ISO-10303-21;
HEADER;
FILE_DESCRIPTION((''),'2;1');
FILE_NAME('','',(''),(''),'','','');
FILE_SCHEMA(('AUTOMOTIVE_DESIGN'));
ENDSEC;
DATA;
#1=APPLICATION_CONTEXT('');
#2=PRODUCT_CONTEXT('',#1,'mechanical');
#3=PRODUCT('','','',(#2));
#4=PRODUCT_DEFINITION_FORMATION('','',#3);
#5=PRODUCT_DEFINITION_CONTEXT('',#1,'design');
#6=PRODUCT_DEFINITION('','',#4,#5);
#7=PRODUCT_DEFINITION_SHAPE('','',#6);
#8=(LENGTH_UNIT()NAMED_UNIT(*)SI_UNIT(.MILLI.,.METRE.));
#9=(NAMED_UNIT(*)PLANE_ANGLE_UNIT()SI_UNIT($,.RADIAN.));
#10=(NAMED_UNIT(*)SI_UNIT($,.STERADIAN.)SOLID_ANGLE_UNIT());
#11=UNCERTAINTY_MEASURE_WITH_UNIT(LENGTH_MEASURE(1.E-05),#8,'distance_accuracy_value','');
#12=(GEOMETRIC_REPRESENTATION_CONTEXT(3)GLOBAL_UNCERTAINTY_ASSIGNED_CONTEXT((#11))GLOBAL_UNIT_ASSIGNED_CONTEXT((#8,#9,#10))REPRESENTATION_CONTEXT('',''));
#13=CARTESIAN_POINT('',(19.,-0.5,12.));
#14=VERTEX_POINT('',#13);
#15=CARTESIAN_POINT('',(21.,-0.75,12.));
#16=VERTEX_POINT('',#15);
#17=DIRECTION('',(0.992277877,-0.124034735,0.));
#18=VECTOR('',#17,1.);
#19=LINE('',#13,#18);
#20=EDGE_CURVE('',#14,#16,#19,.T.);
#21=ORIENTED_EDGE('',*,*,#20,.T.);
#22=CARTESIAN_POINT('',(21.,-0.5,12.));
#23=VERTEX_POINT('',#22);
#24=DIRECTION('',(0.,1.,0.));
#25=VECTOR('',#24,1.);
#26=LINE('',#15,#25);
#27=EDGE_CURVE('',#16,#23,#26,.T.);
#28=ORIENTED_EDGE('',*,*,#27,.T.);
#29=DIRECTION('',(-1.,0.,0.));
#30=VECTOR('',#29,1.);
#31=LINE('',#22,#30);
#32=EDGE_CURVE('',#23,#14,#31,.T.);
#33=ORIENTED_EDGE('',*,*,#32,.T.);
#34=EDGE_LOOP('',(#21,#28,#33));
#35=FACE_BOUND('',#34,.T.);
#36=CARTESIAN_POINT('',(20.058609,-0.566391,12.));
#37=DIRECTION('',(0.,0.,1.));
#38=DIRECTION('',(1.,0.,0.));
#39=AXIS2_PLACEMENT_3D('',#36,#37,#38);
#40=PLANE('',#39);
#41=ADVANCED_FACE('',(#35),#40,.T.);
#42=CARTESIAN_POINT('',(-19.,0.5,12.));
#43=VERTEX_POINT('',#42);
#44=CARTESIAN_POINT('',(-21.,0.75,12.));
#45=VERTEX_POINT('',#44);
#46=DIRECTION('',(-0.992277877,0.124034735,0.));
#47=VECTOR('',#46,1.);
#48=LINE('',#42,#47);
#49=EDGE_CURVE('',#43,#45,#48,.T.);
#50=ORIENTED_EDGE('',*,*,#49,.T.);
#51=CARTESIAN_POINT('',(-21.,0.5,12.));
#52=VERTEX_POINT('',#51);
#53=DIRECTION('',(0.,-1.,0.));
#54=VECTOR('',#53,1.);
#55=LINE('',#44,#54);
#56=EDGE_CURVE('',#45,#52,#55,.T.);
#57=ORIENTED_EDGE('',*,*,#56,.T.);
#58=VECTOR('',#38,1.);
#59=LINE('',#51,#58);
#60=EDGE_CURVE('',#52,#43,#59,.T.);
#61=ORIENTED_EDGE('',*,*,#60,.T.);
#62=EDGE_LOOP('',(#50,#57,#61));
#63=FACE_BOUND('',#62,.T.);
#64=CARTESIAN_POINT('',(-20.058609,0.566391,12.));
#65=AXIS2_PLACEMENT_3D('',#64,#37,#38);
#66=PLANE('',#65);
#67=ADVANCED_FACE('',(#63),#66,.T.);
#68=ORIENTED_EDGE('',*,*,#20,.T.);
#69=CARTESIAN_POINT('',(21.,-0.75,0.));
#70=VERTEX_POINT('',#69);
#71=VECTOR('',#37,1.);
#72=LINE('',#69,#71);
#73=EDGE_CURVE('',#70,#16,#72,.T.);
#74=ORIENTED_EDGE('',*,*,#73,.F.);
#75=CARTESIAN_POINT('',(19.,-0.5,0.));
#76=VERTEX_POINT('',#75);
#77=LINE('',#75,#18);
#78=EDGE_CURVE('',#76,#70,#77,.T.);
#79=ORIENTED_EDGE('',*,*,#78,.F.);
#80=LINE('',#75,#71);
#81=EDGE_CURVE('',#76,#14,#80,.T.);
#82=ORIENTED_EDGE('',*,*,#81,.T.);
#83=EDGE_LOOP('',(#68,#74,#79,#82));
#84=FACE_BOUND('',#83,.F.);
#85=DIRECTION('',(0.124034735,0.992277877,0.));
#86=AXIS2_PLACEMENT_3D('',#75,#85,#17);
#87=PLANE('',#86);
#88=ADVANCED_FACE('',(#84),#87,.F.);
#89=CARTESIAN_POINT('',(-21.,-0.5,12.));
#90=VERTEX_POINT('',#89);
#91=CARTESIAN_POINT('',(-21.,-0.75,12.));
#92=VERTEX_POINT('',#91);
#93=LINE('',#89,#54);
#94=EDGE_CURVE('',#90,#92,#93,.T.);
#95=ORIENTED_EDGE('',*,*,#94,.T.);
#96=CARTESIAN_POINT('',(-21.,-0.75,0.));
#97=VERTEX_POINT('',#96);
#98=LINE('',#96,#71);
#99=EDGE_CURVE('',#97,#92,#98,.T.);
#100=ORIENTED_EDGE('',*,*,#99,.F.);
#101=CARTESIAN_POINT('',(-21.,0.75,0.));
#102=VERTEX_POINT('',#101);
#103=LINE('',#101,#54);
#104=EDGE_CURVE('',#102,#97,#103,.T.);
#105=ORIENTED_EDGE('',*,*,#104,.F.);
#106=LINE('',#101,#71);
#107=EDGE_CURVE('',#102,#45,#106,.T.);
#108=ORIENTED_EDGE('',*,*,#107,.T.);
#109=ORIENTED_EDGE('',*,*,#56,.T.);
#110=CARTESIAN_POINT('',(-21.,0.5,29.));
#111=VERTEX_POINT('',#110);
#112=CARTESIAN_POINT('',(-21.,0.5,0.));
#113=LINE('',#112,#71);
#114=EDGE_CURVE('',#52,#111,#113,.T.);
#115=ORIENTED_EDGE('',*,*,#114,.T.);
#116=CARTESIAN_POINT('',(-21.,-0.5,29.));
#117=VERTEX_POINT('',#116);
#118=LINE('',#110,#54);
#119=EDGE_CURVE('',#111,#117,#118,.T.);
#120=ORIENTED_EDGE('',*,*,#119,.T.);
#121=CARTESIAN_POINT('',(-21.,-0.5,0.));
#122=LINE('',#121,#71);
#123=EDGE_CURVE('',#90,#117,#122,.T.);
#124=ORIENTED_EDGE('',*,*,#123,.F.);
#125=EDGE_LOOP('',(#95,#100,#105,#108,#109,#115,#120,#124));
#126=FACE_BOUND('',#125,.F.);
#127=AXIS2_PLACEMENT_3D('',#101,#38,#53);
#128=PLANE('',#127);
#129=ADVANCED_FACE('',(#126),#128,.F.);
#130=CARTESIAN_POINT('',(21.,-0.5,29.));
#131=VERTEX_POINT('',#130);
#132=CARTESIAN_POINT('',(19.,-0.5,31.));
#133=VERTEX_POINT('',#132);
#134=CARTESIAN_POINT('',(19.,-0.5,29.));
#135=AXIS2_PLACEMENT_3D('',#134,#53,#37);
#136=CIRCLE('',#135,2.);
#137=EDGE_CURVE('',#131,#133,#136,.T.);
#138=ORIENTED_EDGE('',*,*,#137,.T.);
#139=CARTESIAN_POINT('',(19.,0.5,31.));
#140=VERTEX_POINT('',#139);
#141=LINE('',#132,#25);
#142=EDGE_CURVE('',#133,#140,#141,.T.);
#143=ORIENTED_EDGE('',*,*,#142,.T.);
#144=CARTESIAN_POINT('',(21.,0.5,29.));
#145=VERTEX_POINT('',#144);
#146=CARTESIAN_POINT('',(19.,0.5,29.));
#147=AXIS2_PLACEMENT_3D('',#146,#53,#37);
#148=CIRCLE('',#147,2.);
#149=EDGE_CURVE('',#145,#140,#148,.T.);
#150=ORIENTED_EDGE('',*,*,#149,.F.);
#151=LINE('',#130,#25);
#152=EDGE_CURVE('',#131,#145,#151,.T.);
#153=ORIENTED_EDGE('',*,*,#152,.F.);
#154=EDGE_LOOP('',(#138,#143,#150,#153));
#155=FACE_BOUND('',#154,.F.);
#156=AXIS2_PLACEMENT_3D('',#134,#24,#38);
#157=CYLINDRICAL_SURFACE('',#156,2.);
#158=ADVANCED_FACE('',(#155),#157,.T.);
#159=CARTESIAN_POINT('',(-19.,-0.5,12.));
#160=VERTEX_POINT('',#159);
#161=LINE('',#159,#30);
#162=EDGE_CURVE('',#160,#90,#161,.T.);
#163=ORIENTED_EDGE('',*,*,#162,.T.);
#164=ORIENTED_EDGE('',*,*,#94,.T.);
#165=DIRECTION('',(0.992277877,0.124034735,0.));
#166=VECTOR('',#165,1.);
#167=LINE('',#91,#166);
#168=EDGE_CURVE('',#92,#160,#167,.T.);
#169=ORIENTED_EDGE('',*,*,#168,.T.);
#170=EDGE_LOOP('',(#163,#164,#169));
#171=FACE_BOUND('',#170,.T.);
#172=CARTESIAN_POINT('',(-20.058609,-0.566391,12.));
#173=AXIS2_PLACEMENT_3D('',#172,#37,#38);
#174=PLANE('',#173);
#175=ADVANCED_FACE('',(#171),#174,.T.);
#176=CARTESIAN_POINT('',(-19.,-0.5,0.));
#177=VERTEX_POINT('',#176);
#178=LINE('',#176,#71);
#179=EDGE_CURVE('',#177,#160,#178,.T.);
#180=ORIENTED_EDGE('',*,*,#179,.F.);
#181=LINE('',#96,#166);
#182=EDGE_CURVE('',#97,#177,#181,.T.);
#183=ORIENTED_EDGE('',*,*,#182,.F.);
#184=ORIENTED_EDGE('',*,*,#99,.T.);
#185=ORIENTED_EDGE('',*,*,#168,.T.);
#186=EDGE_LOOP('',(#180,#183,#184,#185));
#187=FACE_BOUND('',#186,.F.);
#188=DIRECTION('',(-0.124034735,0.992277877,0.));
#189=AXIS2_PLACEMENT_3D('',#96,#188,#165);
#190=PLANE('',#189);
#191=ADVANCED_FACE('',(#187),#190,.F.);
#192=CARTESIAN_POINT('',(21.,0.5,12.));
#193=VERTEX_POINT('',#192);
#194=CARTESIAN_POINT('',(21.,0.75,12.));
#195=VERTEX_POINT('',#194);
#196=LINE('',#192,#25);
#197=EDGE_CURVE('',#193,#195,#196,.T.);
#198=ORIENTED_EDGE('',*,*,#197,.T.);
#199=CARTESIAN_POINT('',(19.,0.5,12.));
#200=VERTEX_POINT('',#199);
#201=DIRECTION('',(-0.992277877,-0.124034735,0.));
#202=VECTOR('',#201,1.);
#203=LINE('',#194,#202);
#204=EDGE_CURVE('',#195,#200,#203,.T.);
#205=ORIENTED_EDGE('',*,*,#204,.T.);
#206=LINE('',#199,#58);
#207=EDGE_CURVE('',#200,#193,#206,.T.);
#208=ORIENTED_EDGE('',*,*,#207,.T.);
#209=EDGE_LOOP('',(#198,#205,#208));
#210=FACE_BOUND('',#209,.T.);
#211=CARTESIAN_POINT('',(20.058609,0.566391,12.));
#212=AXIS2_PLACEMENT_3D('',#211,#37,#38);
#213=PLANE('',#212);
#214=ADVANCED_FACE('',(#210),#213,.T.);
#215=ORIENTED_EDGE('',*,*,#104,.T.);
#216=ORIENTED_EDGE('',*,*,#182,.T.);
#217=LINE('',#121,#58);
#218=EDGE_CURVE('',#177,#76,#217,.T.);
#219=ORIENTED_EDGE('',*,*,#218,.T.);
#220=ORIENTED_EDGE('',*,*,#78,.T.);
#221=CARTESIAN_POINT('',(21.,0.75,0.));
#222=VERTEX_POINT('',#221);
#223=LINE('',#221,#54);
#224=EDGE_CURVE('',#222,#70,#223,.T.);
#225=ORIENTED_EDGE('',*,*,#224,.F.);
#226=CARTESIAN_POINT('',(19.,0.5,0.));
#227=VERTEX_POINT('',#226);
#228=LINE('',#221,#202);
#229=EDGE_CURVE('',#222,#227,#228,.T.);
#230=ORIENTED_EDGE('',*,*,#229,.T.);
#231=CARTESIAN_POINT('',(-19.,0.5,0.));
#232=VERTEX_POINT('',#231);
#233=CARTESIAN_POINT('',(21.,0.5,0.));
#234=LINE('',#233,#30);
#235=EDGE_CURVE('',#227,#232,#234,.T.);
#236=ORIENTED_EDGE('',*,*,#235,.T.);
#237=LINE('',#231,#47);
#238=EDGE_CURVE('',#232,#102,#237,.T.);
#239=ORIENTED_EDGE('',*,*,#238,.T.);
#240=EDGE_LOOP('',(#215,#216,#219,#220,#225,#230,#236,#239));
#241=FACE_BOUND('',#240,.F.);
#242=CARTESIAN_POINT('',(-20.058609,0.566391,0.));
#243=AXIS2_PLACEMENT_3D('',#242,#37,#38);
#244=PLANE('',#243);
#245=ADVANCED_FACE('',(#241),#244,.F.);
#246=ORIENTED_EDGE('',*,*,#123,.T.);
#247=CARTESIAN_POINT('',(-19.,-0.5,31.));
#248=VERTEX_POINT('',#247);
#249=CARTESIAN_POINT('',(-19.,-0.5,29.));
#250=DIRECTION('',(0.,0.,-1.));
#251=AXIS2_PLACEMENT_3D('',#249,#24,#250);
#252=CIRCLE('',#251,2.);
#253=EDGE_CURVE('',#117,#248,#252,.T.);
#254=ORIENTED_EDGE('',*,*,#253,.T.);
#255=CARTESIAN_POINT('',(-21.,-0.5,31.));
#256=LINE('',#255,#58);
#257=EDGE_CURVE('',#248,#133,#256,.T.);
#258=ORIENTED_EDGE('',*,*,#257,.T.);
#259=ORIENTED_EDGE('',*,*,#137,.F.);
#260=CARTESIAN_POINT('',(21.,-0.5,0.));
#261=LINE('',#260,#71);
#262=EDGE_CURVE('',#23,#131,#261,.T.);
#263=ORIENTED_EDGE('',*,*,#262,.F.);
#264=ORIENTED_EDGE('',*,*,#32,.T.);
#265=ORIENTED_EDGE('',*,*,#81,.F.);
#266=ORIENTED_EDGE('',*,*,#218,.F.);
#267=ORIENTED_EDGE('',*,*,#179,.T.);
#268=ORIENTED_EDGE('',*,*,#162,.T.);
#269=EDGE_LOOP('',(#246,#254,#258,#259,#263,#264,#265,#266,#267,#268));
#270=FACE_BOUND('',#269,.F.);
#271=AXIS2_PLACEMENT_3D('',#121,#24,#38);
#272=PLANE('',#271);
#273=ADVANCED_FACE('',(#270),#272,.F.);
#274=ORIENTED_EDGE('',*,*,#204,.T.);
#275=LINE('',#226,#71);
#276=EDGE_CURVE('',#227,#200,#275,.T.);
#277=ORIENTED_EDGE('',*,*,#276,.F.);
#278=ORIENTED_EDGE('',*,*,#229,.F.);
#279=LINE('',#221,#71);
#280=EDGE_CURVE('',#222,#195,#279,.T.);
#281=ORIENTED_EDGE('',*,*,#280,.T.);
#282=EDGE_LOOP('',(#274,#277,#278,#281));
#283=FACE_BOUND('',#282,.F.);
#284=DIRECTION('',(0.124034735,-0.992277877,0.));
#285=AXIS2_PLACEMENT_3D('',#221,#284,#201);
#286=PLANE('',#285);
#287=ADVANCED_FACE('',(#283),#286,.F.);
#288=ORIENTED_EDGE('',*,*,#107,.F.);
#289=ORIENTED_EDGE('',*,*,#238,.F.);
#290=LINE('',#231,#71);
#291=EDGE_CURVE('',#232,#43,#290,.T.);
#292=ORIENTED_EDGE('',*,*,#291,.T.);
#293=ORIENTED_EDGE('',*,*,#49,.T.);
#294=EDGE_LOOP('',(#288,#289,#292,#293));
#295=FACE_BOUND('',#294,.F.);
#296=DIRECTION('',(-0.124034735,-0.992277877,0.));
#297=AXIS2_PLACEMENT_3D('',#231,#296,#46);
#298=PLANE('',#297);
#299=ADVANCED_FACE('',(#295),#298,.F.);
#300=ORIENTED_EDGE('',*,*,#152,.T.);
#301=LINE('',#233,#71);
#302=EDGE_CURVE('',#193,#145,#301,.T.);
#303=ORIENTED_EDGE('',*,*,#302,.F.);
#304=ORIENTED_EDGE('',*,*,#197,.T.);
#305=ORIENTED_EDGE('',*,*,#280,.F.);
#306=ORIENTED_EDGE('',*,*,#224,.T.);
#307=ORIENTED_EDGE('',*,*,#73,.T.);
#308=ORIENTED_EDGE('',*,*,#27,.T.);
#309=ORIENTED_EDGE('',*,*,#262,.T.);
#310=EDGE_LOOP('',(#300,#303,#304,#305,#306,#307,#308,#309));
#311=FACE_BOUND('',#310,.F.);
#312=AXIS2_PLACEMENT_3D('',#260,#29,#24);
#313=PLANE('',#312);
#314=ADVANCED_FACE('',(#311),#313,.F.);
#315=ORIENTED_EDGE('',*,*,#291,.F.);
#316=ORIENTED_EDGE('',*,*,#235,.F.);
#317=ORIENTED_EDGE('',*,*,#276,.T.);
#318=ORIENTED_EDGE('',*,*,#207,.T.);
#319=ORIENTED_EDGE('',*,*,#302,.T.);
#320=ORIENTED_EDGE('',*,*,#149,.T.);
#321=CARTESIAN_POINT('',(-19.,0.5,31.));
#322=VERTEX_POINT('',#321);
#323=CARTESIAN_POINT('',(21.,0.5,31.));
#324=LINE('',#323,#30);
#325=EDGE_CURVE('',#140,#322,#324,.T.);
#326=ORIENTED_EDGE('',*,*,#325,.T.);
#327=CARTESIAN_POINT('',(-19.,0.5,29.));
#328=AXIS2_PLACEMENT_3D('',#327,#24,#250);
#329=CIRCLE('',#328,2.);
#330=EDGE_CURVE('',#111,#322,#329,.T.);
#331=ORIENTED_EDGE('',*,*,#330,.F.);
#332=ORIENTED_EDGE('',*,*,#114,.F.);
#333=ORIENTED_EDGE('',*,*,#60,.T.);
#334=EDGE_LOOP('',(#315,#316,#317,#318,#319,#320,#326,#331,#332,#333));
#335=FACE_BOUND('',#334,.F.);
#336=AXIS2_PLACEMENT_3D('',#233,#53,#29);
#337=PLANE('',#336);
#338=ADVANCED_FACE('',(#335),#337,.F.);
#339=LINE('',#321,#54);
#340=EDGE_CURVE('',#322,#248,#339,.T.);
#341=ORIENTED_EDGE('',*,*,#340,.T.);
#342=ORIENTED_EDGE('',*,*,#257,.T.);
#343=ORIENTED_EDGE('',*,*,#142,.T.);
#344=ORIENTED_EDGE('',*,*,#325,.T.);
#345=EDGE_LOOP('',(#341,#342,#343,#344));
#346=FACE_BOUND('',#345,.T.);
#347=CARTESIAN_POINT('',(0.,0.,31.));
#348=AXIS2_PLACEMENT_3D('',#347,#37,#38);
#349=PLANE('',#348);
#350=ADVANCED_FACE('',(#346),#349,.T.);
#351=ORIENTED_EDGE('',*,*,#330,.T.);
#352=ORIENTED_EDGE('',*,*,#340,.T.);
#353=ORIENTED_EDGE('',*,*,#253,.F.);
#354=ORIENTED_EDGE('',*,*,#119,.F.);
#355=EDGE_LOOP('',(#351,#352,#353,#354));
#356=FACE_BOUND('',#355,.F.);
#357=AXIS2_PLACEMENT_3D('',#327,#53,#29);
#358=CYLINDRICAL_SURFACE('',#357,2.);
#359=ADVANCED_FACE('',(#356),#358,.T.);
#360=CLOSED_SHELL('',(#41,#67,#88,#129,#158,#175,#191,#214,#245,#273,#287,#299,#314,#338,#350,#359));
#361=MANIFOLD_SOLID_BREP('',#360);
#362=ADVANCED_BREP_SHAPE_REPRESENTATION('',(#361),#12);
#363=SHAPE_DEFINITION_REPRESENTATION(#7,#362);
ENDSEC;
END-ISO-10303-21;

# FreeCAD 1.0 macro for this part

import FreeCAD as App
import Part
import Sketcher


def edges_at(feature, points):
    """Names of the edges that pass closest to the given points."""
    edges = feature.Shape.Edges
    near = lambda p: min(range(len(edges)), key=lambda i: edges[i].distToShape(Part.Vertex(*p))[0])
    return sorted({f"Edge{near(p) + 1}" for p in points})

doc = App.newDocument("Part")
body = doc.addObject("PartDesign::Body", "Body")

sketch1 = doc.addObject("Sketcher::SketchObject", "Sketch")
body.addObject(sketch1)
sketch1.AttachmentSupport = (doc.XY_Plane, [""])
sketch1.MapMode = "FlatFace"
sketch1.addGeometry([
    Part.LineSegment(App.Vector(-21, 0.5, 0), App.Vector(-21, -0.5, 0)),
    Part.LineSegment(App.Vector(-21, -0.5, 0), App.Vector(21, -0.5, 0)),
    Part.LineSegment(App.Vector(21, -0.5, 0), App.Vector(21, 0.5, 0)),
    Part.LineSegment(App.Vector(21, 0.5, 0), App.Vector(-21, 0.5, 0)),
], False)
sketch1.addConstraint([
    Sketcher.Constraint("Coincident", 0, 2, 1, 1),
    Sketcher.Constraint("Coincident", 1, 2, 2, 1),
    Sketcher.Constraint("Coincident", 2, 2, 3, 1),
    Sketcher.Constraint("Coincident", 3, 2, 0, 1),
    Sketcher.Constraint("Vertical", 0),
    Sketcher.Constraint("Horizontal", 1),
    Sketcher.Constraint("Vertical", 2),
    Sketcher.Constraint("Horizontal", 3),
    Sketcher.Constraint("Symmetric", 0, 2, 2, 2, -1, 1),
    Sketcher.Constraint("DistanceX", 1, 1, 1, 2, 42.0),
    Sketcher.Constraint("DistanceY", 0, 2, 0, 1, 1.0),
])
pad1 = doc.addObject("PartDesign::Pad", "Pad")
body.addObject(pad1)
pad1.Profile = sketch1
pad1.Length = 31

sketch2 = doc.addObject("Sketcher::SketchObject", "Sketch001")
body.addObject(sketch2)
sketch2.AttachmentSupport = (doc.XY_Plane, [""])
sketch2.MapMode = "FlatFace"
sketch2.addGeometry([
    Part.LineSegment(App.Vector(-21, 0.75, 0), App.Vector(-21, 0.5, 0)),
    Part.LineSegment(App.Vector(-21, 0.5, 0), App.Vector(-19, 0.5, 0)),
    Part.LineSegment(App.Vector(-19, 0.5, 0), App.Vector(-21, 0.75, 0)),
    Part.LineSegment(App.Vector(-19, -0.5, 0), App.Vector(-21, -0.5, 0)),
    Part.LineSegment(App.Vector(-21, -0.5, 0), App.Vector(-21, -0.75, 0)),
    Part.LineSegment(App.Vector(-21, -0.75, 0), App.Vector(-19, -0.5, 0)),
    Part.LineSegment(App.Vector(21, 0.75, 0), App.Vector(19, 0.5, 0)),
    Part.LineSegment(App.Vector(19, 0.5, 0), App.Vector(21, 0.5, 0)),
    Part.LineSegment(App.Vector(21, 0.5, 0), App.Vector(21, 0.75, 0)),
    Part.LineSegment(App.Vector(21, -0.5, 0), App.Vector(19, -0.5, 0)),
    Part.LineSegment(App.Vector(19, -0.5, 0), App.Vector(21, -0.75, 0)),
    Part.LineSegment(App.Vector(21, -0.75, 0), App.Vector(21, -0.5, 0)),
], False)
sketch2.addConstraint([
    Sketcher.Constraint("Coincident", 0, 2, 1, 1),
    Sketcher.Constraint("Coincident", 1, 2, 2, 1),
    Sketcher.Constraint("Coincident", 2, 2, 0, 1),
    Sketcher.Constraint("Coincident", 3, 2, 4, 1),
    Sketcher.Constraint("Coincident", 4, 2, 5, 1),
    Sketcher.Constraint("Coincident", 5, 2, 3, 1),
    Sketcher.Constraint("Coincident", 6, 2, 7, 1),
    Sketcher.Constraint("Coincident", 7, 2, 8, 1),
    Sketcher.Constraint("Coincident", 8, 2, 6, 1),
    Sketcher.Constraint("Coincident", 9, 2, 10, 1),
    Sketcher.Constraint("Coincident", 10, 2, 11, 1),
    Sketcher.Constraint("Coincident", 11, 2, 9, 1),
    Sketcher.Constraint("Vertical", 0),
    Sketcher.Constraint("Horizontal", 1),
    Sketcher.Constraint("Horizontal", 3),
    Sketcher.Constraint("Vertical", 4),
    Sketcher.Constraint("Horizontal", 7),
    Sketcher.Constraint("Vertical", 8),
    Sketcher.Constraint("Horizontal", 9),
    Sketcher.Constraint("Vertical", 11),
    Sketcher.Constraint("Symmetric", 5, 2, 6, 2, -1, 1),
    Sketcher.Constraint("Symmetric", 4, 2, 8, 2, -1, 1),
    Sketcher.Constraint("Symmetric", 1, 2, 9, 2, -1, 1),
    Sketcher.Constraint("Symmetric", 2, 2, 10, 2, -1, 1),
    Sketcher.Constraint("Symmetric", 1, 2, 6, 2, -2),
    Sketcher.Constraint("Symmetric", 2, 2, 8, 2, -2),
    Sketcher.Constraint("DistanceX", 1, 1, 1, 2, 2.0),
    Sketcher.Constraint("DistanceX", 0, 2, -1, 1, 21.0),
    Sketcher.Constraint("DistanceY", 3, 2, 0, 2, 1.0),
    Sketcher.Constraint("DistanceY", 0, 2, 0, 1, 0.25),
])
pad2 = doc.addObject("PartDesign::Pad", "Pad001")
body.addObject(pad2)
pad2.Profile = sketch2
pad2.Length = 12
doc.recompute()

fillet = doc.addObject("PartDesign::Fillet", "Fillet")
body.addObject(fillet)
fillet.Base = (pad2, edges_at(pad2, [(-21, 0, 31), (21, 0, 31)]))
fillet.Radius = 2

doc.recompute()
